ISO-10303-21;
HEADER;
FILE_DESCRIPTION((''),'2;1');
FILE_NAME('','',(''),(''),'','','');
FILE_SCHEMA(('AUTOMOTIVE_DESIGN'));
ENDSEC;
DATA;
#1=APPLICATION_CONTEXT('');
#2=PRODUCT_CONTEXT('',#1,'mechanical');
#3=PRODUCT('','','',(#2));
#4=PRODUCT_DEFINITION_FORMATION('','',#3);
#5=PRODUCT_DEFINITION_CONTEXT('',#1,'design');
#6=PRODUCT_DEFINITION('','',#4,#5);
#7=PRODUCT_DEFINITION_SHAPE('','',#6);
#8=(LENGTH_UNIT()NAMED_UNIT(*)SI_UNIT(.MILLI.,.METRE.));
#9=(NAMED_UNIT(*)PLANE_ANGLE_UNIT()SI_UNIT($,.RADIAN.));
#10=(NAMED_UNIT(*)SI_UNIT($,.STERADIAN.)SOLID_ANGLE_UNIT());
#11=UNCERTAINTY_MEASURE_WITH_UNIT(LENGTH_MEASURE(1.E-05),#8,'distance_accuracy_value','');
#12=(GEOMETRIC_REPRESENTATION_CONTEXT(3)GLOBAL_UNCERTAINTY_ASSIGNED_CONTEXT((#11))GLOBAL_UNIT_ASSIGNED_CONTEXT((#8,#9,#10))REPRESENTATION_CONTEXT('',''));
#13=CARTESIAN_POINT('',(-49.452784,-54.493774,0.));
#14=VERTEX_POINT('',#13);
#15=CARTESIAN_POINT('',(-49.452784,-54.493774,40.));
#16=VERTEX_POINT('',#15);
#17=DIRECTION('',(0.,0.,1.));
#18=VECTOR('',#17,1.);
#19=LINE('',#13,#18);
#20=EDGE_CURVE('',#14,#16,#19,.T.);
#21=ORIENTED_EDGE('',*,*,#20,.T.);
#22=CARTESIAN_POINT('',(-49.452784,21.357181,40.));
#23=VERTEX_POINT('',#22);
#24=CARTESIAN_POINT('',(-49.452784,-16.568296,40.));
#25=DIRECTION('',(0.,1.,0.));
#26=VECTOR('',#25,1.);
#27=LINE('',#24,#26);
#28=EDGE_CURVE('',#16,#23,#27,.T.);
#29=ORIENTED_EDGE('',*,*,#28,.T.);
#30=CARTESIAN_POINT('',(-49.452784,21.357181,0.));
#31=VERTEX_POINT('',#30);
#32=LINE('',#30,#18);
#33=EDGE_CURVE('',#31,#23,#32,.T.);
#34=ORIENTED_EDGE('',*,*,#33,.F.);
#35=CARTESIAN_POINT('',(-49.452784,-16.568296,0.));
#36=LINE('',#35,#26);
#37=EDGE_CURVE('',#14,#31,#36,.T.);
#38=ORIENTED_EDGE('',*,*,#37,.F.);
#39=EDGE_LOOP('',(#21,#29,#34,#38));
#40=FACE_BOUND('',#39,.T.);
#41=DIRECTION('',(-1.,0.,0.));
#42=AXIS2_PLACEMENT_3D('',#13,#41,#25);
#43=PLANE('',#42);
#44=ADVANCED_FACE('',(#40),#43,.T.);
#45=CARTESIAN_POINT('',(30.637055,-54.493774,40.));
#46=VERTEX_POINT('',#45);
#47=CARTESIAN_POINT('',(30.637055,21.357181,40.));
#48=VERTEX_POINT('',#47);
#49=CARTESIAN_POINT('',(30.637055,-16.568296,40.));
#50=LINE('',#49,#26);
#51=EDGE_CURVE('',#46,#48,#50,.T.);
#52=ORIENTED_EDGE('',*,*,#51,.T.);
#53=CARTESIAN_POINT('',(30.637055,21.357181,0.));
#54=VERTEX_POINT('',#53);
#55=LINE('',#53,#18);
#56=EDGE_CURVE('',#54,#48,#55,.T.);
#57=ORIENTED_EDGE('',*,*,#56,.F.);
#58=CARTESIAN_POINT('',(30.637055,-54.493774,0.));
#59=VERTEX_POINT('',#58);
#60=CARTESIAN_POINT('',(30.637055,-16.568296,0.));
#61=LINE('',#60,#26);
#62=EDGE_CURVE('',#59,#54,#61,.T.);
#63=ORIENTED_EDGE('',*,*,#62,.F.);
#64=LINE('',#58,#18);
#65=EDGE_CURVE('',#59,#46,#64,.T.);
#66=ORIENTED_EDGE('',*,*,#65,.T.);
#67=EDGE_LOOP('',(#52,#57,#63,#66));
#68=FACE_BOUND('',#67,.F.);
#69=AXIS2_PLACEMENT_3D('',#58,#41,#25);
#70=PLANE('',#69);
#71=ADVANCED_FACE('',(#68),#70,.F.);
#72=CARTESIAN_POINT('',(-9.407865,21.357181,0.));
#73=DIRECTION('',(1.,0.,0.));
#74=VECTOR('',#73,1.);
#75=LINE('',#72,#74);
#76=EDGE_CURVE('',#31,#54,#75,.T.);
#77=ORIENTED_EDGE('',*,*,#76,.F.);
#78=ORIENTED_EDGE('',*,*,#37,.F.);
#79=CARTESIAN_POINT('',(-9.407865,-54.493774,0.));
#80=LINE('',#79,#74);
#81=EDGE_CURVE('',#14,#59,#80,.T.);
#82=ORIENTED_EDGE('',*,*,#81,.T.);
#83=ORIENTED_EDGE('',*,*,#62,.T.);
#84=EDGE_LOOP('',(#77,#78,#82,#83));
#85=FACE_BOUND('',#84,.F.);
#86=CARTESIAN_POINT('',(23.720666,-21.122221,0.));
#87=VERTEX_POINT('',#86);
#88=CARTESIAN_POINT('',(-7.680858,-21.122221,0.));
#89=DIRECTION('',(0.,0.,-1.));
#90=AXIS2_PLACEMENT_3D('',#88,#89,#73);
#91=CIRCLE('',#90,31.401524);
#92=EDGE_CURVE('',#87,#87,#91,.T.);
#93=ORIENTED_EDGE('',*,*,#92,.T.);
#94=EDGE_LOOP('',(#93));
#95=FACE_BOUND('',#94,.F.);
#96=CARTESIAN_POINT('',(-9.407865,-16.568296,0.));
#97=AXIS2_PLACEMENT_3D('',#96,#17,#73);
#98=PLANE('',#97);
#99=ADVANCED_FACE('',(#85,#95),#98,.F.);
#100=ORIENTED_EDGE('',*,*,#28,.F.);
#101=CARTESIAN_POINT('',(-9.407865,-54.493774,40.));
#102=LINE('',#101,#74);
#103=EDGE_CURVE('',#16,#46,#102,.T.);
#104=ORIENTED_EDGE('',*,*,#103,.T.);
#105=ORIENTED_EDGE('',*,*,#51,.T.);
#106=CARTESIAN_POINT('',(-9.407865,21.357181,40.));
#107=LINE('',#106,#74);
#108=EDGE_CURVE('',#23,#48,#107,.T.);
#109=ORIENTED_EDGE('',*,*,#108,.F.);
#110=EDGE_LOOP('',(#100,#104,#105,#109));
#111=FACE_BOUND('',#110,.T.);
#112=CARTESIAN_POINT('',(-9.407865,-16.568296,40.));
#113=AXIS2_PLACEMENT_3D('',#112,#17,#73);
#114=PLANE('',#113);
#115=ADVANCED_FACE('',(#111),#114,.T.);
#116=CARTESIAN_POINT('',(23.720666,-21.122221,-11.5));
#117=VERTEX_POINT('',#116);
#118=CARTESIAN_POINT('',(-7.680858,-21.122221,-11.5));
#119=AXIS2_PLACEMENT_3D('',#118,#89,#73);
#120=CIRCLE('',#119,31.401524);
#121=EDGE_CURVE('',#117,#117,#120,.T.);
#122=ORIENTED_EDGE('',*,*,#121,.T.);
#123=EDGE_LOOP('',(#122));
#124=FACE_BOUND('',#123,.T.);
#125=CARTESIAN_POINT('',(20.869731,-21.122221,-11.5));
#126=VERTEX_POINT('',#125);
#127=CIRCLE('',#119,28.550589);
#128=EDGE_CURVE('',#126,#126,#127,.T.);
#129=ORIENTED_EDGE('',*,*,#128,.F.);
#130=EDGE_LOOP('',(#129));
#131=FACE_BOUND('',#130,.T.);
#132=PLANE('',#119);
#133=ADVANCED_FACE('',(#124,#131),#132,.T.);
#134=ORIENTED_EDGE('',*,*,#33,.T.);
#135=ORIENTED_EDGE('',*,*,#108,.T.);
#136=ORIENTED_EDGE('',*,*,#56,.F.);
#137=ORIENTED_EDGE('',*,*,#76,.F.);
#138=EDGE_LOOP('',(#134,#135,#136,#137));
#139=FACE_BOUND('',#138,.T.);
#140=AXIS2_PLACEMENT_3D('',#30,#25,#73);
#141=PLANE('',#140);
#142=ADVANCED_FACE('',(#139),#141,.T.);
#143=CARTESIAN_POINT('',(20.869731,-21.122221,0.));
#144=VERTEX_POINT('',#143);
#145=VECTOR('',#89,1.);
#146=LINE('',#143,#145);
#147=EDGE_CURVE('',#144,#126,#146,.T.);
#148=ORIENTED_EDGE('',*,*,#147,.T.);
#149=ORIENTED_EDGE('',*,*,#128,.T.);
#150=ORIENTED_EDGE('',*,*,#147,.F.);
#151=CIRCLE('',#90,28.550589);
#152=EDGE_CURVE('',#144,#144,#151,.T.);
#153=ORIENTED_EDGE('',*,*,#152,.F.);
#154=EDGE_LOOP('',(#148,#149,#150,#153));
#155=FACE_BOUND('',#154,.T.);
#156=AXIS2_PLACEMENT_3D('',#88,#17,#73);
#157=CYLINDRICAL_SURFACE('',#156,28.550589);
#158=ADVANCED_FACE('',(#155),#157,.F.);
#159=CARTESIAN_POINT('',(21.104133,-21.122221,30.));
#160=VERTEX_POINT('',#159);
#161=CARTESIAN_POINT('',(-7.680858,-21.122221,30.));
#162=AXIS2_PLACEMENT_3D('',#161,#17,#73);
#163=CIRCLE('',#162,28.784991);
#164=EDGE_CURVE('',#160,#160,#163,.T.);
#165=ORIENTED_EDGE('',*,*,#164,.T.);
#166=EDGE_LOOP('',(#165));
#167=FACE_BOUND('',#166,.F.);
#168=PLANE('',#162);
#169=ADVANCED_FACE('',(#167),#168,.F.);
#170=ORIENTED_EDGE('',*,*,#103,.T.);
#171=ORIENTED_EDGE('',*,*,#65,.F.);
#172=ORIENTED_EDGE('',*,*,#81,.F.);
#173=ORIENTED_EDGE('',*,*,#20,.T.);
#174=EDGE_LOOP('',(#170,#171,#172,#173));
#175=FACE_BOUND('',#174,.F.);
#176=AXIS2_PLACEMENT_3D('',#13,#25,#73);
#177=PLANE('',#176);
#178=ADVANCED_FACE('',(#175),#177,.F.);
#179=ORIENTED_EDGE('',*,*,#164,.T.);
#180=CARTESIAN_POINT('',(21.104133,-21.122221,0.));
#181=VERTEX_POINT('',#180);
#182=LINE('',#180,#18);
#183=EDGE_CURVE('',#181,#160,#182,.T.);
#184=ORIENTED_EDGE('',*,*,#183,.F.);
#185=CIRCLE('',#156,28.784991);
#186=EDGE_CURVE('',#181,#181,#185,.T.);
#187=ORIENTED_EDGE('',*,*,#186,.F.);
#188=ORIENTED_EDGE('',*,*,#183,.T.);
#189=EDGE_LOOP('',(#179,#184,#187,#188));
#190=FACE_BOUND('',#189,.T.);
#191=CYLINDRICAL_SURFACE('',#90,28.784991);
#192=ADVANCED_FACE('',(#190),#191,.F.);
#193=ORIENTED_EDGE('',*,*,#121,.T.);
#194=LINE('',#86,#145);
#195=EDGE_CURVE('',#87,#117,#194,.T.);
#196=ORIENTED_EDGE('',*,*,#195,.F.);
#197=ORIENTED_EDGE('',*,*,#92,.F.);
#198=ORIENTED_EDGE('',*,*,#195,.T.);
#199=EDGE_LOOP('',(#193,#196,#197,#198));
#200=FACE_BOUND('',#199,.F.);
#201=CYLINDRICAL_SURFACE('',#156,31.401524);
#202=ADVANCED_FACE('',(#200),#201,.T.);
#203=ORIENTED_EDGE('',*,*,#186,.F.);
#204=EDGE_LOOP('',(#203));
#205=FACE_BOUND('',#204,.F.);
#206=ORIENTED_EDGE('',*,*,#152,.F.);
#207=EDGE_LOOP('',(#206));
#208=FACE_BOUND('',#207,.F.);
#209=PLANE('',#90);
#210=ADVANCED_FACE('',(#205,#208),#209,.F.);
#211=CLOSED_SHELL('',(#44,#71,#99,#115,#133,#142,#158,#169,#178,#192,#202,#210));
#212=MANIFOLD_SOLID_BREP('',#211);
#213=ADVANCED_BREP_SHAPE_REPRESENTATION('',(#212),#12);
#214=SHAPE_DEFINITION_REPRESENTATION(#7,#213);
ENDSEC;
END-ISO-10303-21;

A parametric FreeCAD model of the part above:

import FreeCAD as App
import Part
import Sketcher
from FreeCAD import Vector
Q = App.Units.Quantity


def add_polygon(sketch, points):
    """Adds a closed chain of lines whose ends are joined by coincident constraints."""
    first, n = sketch.GeometryCount, len(points)
    for a, b in zip(points, points[1:] + points[:1]):
        sketch.addGeometry(Part.LineSegment(App.Vector(*a, 0), App.Vector(*b, 0)), False)
    for i in range(n):
        sketch.addConstraint(Sketcher.Constraint("Coincident", first + i, 2, first + (i + 1) % n, 1))

doc = App.newDocument("Part")
body = doc.addObject("PartDesign::Body", "Body")

sketch1 = body.newObject("Sketcher::SketchObject", "Sketch")
sketch1.AttachmentSupport = (doc.getObject("XY_Plane"), [""])
sketch1.MapMode = "FlatFace"
add_polygon(sketch1, [(-49, 21), (-49, -54), (31, -54), (31, 21)])
sketch1.addConstraint(Sketcher.Constraint("Vertical", 0))
sketch1.addConstraint(Sketcher.Constraint("Horizontal", 1))
sketch1.addConstraint(Sketcher.Constraint("Vertical", 2))
sketch1.addConstraint(Sketcher.Constraint("Horizontal", 3))
sketch1.addConstraint(Sketcher.Constraint("DistanceX", 1, 1, 1, 2, Q("80.089839 mm")))
sketch1.addConstraint(Sketcher.Constraint("DistanceY", 0, 2, 0, 1, Q("75.850955 mm")))
sketch1.addConstraint(Sketcher.Constraint("DistanceY", -1, 1, 2, 2, Q("21.357181 mm")))
sketch1.addConstraint(Sketcher.Constraint("DistanceX", 0, 2, -1, 1, Q("49.452784 mm")))
pad1 = body.newObject("PartDesign::Pad", "Pad")
pad1.Profile = sketch1
pad1.Length = 40

sketch2 = body.newObject("Sketcher::SketchObject", "Sketch001")
sketch2.AttachmentSupport = (doc.getObject("XY_Plane"), [""])
sketch2.MapMode = "FlatFace"
sketch2.addGeometry(Part.Circle(Vector(-8, -21, 0), Vector(0, 0, 1), 29), False)
sketch2.addConstraint(Sketcher.Constraint("Diameter", 0, Q("57.569982 mm")))
sketch2.addConstraint(Sketcher.Constraint("DistanceY", 0, 3, -1, 1, Q("21.122221 mm")))
sketch2.addConstraint(Sketcher.Constraint("DistanceX", 0, 3, -1, 1, Q("7.680858 mm")))
pocket1 = body.newObject("PartDesign::Pocket", "Pocket")
pocket1.Profile = sketch2
pocket1.Length = 30
pocket1.Reversed = True

sketch3 = body.newObject("Sketcher::SketchObject", "Sketch002")
sketch3.AttachmentSupport = (doc.getObject("XY_Plane"), [""])
sketch3.MapMode = "FlatFace"
sketch3.addGeometry(Part.Circle(Vector(-8, -21, 0), Vector(0, 0, 1), 31), False)
sketch3.addGeometry(Part.Circle(Vector(-8, -21, 0), Vector(0, 0, 1), 29), False)
sketch3.addConstraint(Sketcher.Constraint("Coincident", 1, 3, 0, 3))
sketch3.addConstraint(Sketcher.Constraint("Diameter", 0, Q("62.803048 mm")))
sketch3.addConstraint(Sketcher.Constraint("Diameter", 1, Q("57.101178 mm")))
sketch3.addConstraint(Sketcher.Constraint("DistanceY", 0, 3, -1, 1, Q("21.122221 mm")))
sketch3.addConstraint(Sketcher.Constraint("DistanceX", 0, 3, -1, 1, Q("7.680858 mm")))
pad2 = body.newObject("PartDesign::Pad", "Pad001")
pad2.Profile = sketch3
pad2.Length = 11.5
pad2.Reversed = True

doc.recompute()
